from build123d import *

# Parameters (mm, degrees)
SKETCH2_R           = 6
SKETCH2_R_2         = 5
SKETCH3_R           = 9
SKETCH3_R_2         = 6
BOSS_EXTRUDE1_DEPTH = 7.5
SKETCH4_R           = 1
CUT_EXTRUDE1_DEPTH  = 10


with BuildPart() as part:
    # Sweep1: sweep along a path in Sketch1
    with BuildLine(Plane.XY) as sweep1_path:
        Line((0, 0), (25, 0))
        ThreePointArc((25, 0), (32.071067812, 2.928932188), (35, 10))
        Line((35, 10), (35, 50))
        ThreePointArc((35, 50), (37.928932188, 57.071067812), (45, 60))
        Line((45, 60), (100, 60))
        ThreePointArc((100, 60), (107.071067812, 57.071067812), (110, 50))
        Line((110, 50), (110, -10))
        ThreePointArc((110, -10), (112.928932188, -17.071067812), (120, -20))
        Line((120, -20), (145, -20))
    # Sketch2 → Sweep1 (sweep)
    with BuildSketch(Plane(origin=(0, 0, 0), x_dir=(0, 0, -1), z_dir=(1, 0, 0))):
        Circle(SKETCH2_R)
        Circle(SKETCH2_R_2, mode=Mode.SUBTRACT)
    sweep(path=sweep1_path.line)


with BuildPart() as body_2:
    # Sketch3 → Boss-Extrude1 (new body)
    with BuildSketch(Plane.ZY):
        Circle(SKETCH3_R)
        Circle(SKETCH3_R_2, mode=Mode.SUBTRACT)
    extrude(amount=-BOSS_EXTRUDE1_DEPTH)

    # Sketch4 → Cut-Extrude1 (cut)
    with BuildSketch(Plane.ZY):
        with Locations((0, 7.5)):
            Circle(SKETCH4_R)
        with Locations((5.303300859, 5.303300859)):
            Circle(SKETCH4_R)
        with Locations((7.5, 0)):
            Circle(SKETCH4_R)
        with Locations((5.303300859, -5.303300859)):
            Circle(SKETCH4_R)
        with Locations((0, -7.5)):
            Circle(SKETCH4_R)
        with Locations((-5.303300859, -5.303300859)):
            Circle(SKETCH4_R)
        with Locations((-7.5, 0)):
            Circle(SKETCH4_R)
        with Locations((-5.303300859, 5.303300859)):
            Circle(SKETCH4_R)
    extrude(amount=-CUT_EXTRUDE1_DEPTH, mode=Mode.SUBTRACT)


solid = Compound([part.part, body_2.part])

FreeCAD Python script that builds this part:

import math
import FreeCAD as App
import Part
import Sketcher

V = App.Vector
Q = App.Units.Quantity

doc = App.newDocument("Part")
body = doc.addObject("PartDesign::Body", "Body")

# Sketch on YZ plane
sketch1 = body.newObject("Sketcher::SketchObject", "Sketch")
sketch1.AttachmentSupport = (doc.getObject("YZ_Plane"), [""])
sketch1.MapMode = "FlatFace"
sketch1.addGeometry([
    Part.Circle(V(0, 0, 0), V(0, 0, 1), 6),
    Part.Circle(V(0, 0, 0), V(0, 0, 1), 5),
], False)
sketch1.addConstraint([
    Sketcher.Constraint("Coincident", 0, 3, -1, 1),
    Sketcher.Constraint("Coincident", 1, 3, -1, 1),
    Sketcher.Constraint("Diameter", 0, Q("12 mm")),
    Sketcher.Constraint("Diameter", 1, Q("10 mm")),
])

# Sketch on XY plane
sketch2 = body.newObject("Sketcher::SketchObject", "Sketch001")
sketch2.AttachmentSupport = (doc.getObject("XY_Plane"), [""])
sketch2.MapMode = "FlatFace"
sketch2.addGeometry([
    Part.LineSegment(V(0, 0, 0), V(25, 0, 0)),  # 0
    Part.ArcOfCircle(Part.Circle(V(25, 10, 0), V(0, 0, 1), 10), math.radians(-90), math.radians(0)),  # 1
    Part.LineSegment(V(35, 10, 0), V(35, 50, 0)),  # 2
    Part.ArcOfCircle(Part.Circle(V(45, 50, 0), V(0, 0, 1), 10), math.radians(90), math.radians(180)),  # 3
    Part.LineSegment(V(45, 60, 0), V(100, 60, 0)),  # 4
    Part.ArcOfCircle(Part.Circle(V(100, 50, 0), V(0, 0, 1), 10), math.radians(0), math.radians(90)),  # 5
    Part.LineSegment(V(110, 50, 0), V(110, -10, 0)),  # 6
    Part.ArcOfCircle(Part.Circle(V(120, -10, 0), V(0, 0, 1), 10), math.radians(180), math.radians(270)),  # 7
    Part.LineSegment(V(120, -20, 0), V(145, -20, 0)),  # 8
], False)
sketch2.addConstraint([
    Sketcher.Constraint("Tangent", 0, 2, 1, 1),
    Sketcher.Constraint("Tangent", 1, 2, 2, 1),
    Sketcher.Constraint("Tangent", 2, 2, 3, 2),
    Sketcher.Constraint("Tangent", 3, 1, 4, 1),
    Sketcher.Constraint("Tangent", 4, 2, 5, 2),
    Sketcher.Constraint("Tangent", 5, 1, 6, 1),
    Sketcher.Constraint("Tangent", 6, 2, 7, 1),
    Sketcher.Constraint("Tangent", 7, 2, 8, 1),
    Sketcher.Constraint("Horizontal", 0),
    Sketcher.Constraint("Vertical", 2),
    Sketcher.Constraint("Horizontal", 4),
    Sketcher.Constraint("Vertical", 6),
    Sketcher.Constraint("Horizontal", 8),
    Sketcher.Constraint("Coincident", 0, 1, -1, 1),
    Sketcher.Constraint("Equal", 1, 3),
    Sketcher.Constraint("Equal", 3, 5),
    Sketcher.Constraint("Equal", 5, 7),
    Sketcher.Constraint("Equal", 0, 8),
    Sketcher.Constraint("Radius", 1, Q("10 mm")),
    Sketcher.Constraint("DistanceX", 0, 1, 0, 2, Q("25 mm")),
    Sketcher.Constraint("DistanceX", 4, 1, 4, 2, Q("55 mm")),
    Sketcher.Constraint("DistanceY", 2, 1, 2, 2, Q("40 mm")),
    Sketcher.Constraint("DistanceY", 6, 2, 6, 1, Q("60 mm")),
])
doc.recompute()

additivepipe = body.newObject("PartDesign::AdditivePipe", "AdditivePipe")
additivepipe.Profile = sketch1
additivepipe.Spine = (sketch2, ["Edge1", "Edge2", "Edge3", "Edge4", "Edge5", "Edge6", "Edge7", "Edge8", "Edge9"])
body2 = doc.addObject("PartDesign::Body", "Body001")

# Sketch on YZ plane
sketch3 = body2.newObject("Sketcher::SketchObject", "Sketch002")
sketch3.AttachmentSupport = (doc.getObject("YZ_Plane001"), [""])
sketch3.MapMode = "FlatFace"
sketch3.addGeometry([
    Part.Circle(V(0, 0, 0), V(0, 0, 1), 9),
    Part.Circle(V(0, 0, 0), V(0, 0, 1), 6),
], False)
sketch3.addConstraint([
    Sketcher.Constraint("Coincident", 0, 3, -1, 1),
    Sketcher.Constraint("Coincident", 1, 3, -1, 1),
    Sketcher.Constraint("Diameter", 0, Q("18 mm")),
    Sketcher.Constraint("Diameter", 1, Q("12 mm")),
])
pad1 = body2.newObject("PartDesign::Pad", "Pad")
pad1.Profile = sketch3
pad1.Length = 7.5

# Sketch on YZ plane
sketch4 = body2.newObject("Sketcher::SketchObject", "Sketch003")
sketch4.AttachmentSupport = (doc.getObject("YZ_Plane001"), [""])
sketch4.MapMode = "FlatFace"
sketch4.addGeometry([
    Part.Circle(V(7.5, 0, 0), V(0, 0, 1), 1),  # 0
    Part.Circle(V(5.3, 5.3, 0), V(0, 0, 1), 1),  # 1
    Part.Circle(V(0, 7.5, 0), V(0, 0, 1), 1),  # 2
    Part.Circle(V(-5.3, 5.3, 0), V(0, 0, 1), 1),  # 3
    Part.Circle(V(-7.5, 0, 0), V(0, 0, 1), 1),  # 4
    Part.Circle(V(-5.3, -5.3, 0), V(0, 0, 1), 1),  # 5
    Part.Circle(V(0, -7.5, 0), V(0, 0, 1), 1),  # 6
    Part.Circle(V(5.3, -5.3, 0), V(0, 0, 1), 1),  # 7
], False)
sketch4.addConstraint([
    Sketcher.Constraint("Equal", 0, 1),
    Sketcher.Constraint("Equal", 1, 2),
    Sketcher.Constraint("Equal", 2, 3),
    Sketcher.Constraint("Equal", 3, 4),
    Sketcher.Constraint("Equal", 4, 5),
    Sketcher.Constraint("Equal", 5, 6),
    Sketcher.Constraint("Equal", 6, 7),
    Sketcher.Constraint("Symmetric", 0, 3, 4, 3, -1, 1),
    Sketcher.Constraint("Symmetric", 1, 3, 5, 3, -1, 1),
    Sketcher.Constraint("Symmetric", 2, 3, 6, 3, -1, 1),
    Sketcher.Constraint("Symmetric", 3, 3, 7, 3, -1, 1),
    Sketcher.Constraint("Symmetric", 1, 3, 3, 3, -2),
    Sketcher.Constraint("PointOnObject", 0, 3, -1),
    Sketcher.Constraint("PointOnObject", 2, 3, -2),
    Sketcher.Constraint("Diameter", 0, Q("2 mm")),
    Sketcher.Constraint("DistanceX", 4, 3, 0, 3, Q("15 mm")),
    Sketcher.Constraint("DistanceY", -1, 1, 2, 3, Q("7.5 mm")),
    Sketcher.Constraint("DistanceX", -1, 1, 1, 3, Q("5.303301 mm")),
    Sketcher.Constraint("DistanceY", -1, 1, 1, 3, Q("5.303301 mm")),
])
pocket1 = body2.newObject("PartDesign::Pocket", "Pocket")
pocket1.Profile = sketch4
pocket1.Length = 10
pocket1.Reversed = True

doc.recompute()
